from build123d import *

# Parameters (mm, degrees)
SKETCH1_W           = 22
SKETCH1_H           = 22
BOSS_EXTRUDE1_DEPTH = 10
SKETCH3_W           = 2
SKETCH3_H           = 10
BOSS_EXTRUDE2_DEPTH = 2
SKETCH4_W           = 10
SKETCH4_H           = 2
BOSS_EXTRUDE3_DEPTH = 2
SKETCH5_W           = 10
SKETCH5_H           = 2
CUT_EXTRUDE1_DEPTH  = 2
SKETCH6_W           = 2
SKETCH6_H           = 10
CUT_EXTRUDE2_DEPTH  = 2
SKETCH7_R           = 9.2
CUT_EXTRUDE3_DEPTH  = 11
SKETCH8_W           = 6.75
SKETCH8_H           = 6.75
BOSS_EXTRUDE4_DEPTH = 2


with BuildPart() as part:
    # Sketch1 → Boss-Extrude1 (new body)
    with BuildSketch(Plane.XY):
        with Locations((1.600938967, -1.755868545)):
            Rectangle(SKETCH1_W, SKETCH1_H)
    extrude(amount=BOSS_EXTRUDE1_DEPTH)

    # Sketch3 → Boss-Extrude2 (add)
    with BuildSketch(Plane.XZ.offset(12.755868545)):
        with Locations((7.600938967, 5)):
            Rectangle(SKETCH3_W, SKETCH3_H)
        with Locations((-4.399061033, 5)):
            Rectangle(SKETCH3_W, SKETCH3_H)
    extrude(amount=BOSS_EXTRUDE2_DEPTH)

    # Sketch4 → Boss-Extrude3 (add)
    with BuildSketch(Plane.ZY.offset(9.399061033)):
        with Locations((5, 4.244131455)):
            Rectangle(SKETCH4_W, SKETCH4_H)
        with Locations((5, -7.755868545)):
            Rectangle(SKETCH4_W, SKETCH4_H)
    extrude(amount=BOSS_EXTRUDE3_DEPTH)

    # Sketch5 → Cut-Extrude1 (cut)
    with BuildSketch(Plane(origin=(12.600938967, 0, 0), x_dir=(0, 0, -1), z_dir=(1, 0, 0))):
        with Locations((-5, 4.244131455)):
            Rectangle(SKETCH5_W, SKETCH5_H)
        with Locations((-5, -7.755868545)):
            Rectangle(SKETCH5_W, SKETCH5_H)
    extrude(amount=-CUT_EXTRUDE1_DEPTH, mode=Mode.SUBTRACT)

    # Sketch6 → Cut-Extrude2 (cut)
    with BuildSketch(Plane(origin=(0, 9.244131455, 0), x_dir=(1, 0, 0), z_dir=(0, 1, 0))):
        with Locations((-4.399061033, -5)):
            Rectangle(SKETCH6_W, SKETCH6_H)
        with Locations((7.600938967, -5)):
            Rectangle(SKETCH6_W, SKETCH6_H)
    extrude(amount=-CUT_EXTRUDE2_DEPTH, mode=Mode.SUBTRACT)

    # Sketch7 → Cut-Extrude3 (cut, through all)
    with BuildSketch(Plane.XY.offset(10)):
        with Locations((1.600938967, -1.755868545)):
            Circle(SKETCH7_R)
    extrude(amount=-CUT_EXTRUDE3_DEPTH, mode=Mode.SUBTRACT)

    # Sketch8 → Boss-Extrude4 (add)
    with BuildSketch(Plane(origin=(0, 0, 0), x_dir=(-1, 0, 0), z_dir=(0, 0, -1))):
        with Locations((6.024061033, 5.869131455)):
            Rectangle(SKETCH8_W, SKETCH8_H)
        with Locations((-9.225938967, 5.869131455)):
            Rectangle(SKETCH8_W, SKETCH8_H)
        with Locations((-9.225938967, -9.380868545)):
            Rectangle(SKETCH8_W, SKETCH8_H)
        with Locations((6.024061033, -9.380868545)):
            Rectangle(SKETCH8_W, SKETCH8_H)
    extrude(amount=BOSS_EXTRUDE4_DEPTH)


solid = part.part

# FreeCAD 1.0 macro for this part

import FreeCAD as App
import Part
import Sketcher

V = App.Vector

doc = App.newDocument("Part")
body = doc.addObject("PartDesign::Body", "Body")

# Sketch on XY plane
sketch1 = body.newObject("Sketcher::SketchObject", "Sketch")
sketch1.AttachmentSupport = (doc.getObject("XY_Plane"), [""])
sketch1.MapMode = "FlatFace"
sketch1.addGeometry(Part.LineSegment(V(-9, 9, 0), V(-9, -13, 0)), False)
sketch1.addGeometry(Part.LineSegment(V(-9, -13, 0), V(13, -13, 0)), False)
sketch1.addGeometry(Part.LineSegment(V(13, -13, 0), V(13, 9, 0)), False)
sketch1.addGeometry(Part.LineSegment(V(13, 9, 0), V(-9, 9, 0)), False)
sketch1.addConstraint(Sketcher.Constraint("Coincident", 0, 2, 1, 1))
sketch1.addConstraint(Sketcher.Constraint("Coincident", 1, 2, 2, 1))
sketch1.addConstraint(Sketcher.Constraint("Coincident", 2, 2, 3, 1))
sketch1.addConstraint(Sketcher.Constraint("Coincident", 3, 2, 0, 1))
sketch1.addConstraint(Sketcher.Constraint("Vertical", 0))
sketch1.addConstraint(Sketcher.Constraint("Horizontal", 1))
sketch1.addConstraint(Sketcher.Constraint("Vertical", 2))
sketch1.addConstraint(Sketcher.Constraint("Horizontal", 3))
sketch1.addConstraint(Sketcher.Constraint("Equal", 3, 0))
sketch1.addConstraint(Sketcher.Constraint("DistanceX", 1, 1, 1, 2, 22.0))
sketch1.addConstraint(Sketcher.Constraint("DistanceX", 0, 2, -1, 1, 9.399061))
sketch1.addConstraint(Sketcher.Constraint("DistanceY", 0, 2, -1, 1, 12.755869))
pad1 = body.newObject("PartDesign::Pad", "Pad")
pad1.Profile = sketch1
pad1.Length = 10

# Sketch on XZ plane
sketch2 = body.newObject("Sketcher::SketchObject", "Sketch001")
sketch2.AttachmentSupport = (doc.getObject("XZ_Plane"), [""])
sketch2.MapMode = "FlatFace"
sketch2.AttachmentOffset = App.Placement(V(0, 0, 12.755869), App.Rotation())
sketch2.addGeometry(Part.LineSegment(V(6.6, 10, 0), V(6.6, 0, 0)), False)
sketch2.addGeometry(Part.LineSegment(V(6.6, 0, 0), V(8.6, 0, 0)), False)
sketch2.addGeometry(Part.LineSegment(V(8.6, 0, 0), V(8.6, 10, 0)), False)
sketch2.addGeometry(Part.LineSegment(V(8.6, 10, 0), V(6.6, 10, 0)), False)
sketch2.addGeometry(Part.LineSegment(V(-5.4, 10, 0), V(-5.4, 0, 0)), False)
sketch2.addGeometry(Part.LineSegment(V(-5.4, 0, 0), V(-3.4, 0, 0)), False)
sketch2.addGeometry(Part.LineSegment(V(-3.4, 0, 0), V(-3.4, 10, 0)), False)
sketch2.addGeometry(Part.LineSegment(V(-3.4, 10, 0), V(-5.4, 10, 0)), False)
sketch2.addConstraint(Sketcher.Constraint("Coincident", 0, 2, 1, 1))
sketch2.addConstraint(Sketcher.Constraint("Coincident", 1, 2, 2, 1))
sketch2.addConstraint(Sketcher.Constraint("Coincident", 2, 2, 3, 1))
sketch2.addConstraint(Sketcher.Constraint("Coincident", 3, 2, 0, 1))
sketch2.addConstraint(Sketcher.Constraint("Coincident", 4, 2, 5, 1))
sketch2.addConstraint(Sketcher.Constraint("Coincident", 5, 2, 6, 1))
sketch2.addConstraint(Sketcher.Constraint("Coincident", 6, 2, 7, 1))
sketch2.addConstraint(Sketcher.Constraint("Coincident", 7, 2, 4, 1))
sketch2.addConstraint(Sketcher.Constraint("Vertical", 0))
sketch2.addConstraint(Sketcher.Constraint("Horizontal", 1))
sketch2.addConstraint(Sketcher.Constraint("Vertical", 2))
sketch2.addConstraint(Sketcher.Constraint("Horizontal", 3))
sketch2.addConstraint(Sketcher.Constraint("Vertical", 4))
sketch2.addConstraint(Sketcher.Constraint("Horizontal", 5))
sketch2.addConstraint(Sketcher.Constraint("Vertical", 6))
sketch2.addConstraint(Sketcher.Constraint("Horizontal", 7))
sketch2.addConstraint(Sketcher.Constraint("PointOnObject", 0, 2, -1))
sketch2.addConstraint(Sketcher.Constraint("PointOnObject", 4, 2, -1))
sketch2.addConstraint(Sketcher.Constraint("Horizontal", 3, 2, 6, 2))
sketch2.addConstraint(Sketcher.Constraint("Equal", 3, 5))
sketch2.addConstraint(Sketcher.Constraint("DistanceX", 1, 1, 1, 2, 2.0))
sketch2.addConstraint(Sketcher.Constraint("DistanceY", 0, 2, 0, 1, 10.0))
sketch2.addConstraint(Sketcher.Constraint("DistanceX", 4, 2, 0, 2, 12.0))
sketch2.addConstraint(Sketcher.Constraint("DistanceX", -1, 1, 0, 2, 6.600939))
pad2 = body.newObject("PartDesign::Pad", "Pad001")
pad2.Profile = sketch2
pad2.Length = 2

# Sketch on YZ plane
sketch3 = body.newObject("Sketcher::SketchObject", "Sketch002")
sketch3.AttachmentSupport = (doc.getObject("YZ_Plane"), [""])
sketch3.MapMode = "FlatFace"
sketch3.AttachmentOffset = App.Placement(V(0, 0, -9.399061), App.Rotation())
sketch3.addGeometry(Part.LineSegment(V(5.2, 0, 0), V(3.2, 0, 0)), False)
sketch3.addGeometry(Part.LineSegment(V(3.2, 0, 0), V(3.2, 10, 0)), False)
sketch3.addGeometry(Part.LineSegment(V(3.2, 10, 0), V(5.2, 10, 0)), False)
sketch3.addGeometry(Part.LineSegment(V(5.2, 10, 0), V(5.2, 0, 0)), False)
sketch3.addGeometry(Part.LineSegment(V(-6.8, 0, 0), V(-8.8, 0, 0)), False)
sketch3.addGeometry(Part.LineSegment(V(-8.8, 0, 0), V(-8.8, 10, 0)), False)
sketch3.addGeometry(Part.LineSegment(V(-8.8, 10, 0), V(-6.8, 10, 0)), False)
sketch3.addGeometry(Part.LineSegment(V(-6.8, 10, 0), V(-6.8, 0, 0)), False)
sketch3.addConstraint(Sketcher.Constraint("Coincident", 0, 2, 1, 1))
sketch3.addConstraint(Sketcher.Constraint("Coincident", 1, 2, 2, 1))
sketch3.addConstraint(Sketcher.Constraint("Coincident", 2, 2, 3, 1))
sketch3.addConstraint(Sketcher.Constraint("Coincident", 3, 2, 0, 1))
sketch3.addConstraint(Sketcher.Constraint("Coincident", 4, 2, 5, 1))
sketch3.addConstraint(Sketcher.Constraint("Coincident", 5, 2, 6, 1))
sketch3.addConstraint(Sketcher.Constraint("Coincident", 6, 2, 7, 1))
sketch3.addConstraint(Sketcher.Constraint("Coincident", 7, 2, 4, 1))
sketch3.addConstraint(Sketcher.Constraint("Horizontal", 0))
sketch3.addConstraint(Sketcher.Constraint("Vertical", 1))
sketch3.addConstraint(Sketcher.Constraint("Horizontal", 2))
sketch3.addConstraint(Sketcher.Constraint("Vertical", 3))
sketch3.addConstraint(Sketcher.Constraint("Horizontal", 4))
sketch3.addConstraint(Sketcher.Constraint("Vertical", 5))
sketch3.addConstraint(Sketcher.Constraint("Horizontal", 6))
sketch3.addConstraint(Sketcher.Constraint("Vertical", 7))
sketch3.addConstraint(Sketcher.Constraint("PointOnObject", 0, 2, -1))
sketch3.addConstraint(Sketcher.Constraint("PointOnObject", 4, 2, -1))
sketch3.addConstraint(Sketcher.Constraint("Horizontal", 2, 2, 5, 2))
sketch3.addConstraint(Sketcher.Constraint("Equal", 2, 4))
sketch3.addConstraint(Sketcher.Constraint("DistanceX", 0, 2, 0, 1, 2.0))
sketch3.addConstraint(Sketcher.Constraint("DistanceY", 1, 1, 1, 2, 10.0))
sketch3.addConstraint(Sketcher.Constraint("DistanceX", 4, 2, 0, 2, 12.0))
sketch3.addConstraint(Sketcher.Constraint("DistanceX", -1, 1, 0, 2, 3.244131))
pad3 = body.newObject("PartDesign::Pad", "Pad002")
pad3.Profile = sketch3
pad3.Length = 2
pad3.Reversed = True

# Sketch on YZ plane
sketch4 = body.newObject("Sketcher::SketchObject", "Sketch003")
sketch4.AttachmentSupport = (doc.getObject("YZ_Plane"), [""])
sketch4.MapMode = "FlatFace"
sketch4.AttachmentOffset = App.Placement(V(0, 0, 12.600939), App.Rotation())
sketch4.addGeometry(Part.LineSegment(V(5.2, 10, 0), V(3.2, 10, 0)), False)
sketch4.addGeometry(Part.LineSegment(V(3.2, 10, 0), V(3.2, 0, 0)), False)
sketch4.addGeometry(Part.LineSegment(V(3.2, 0, 0), V(5.2, 0, 0)), False)
sketch4.addGeometry(Part.LineSegment(V(5.2, 0, 0), V(5.2, 10, 0)), False)
sketch4.addGeometry(Part.LineSegment(V(-6.8, 10, 0), V(-8.8, 10, 0)), False)
sketch4.addGeometry(Part.LineSegment(V(-8.8, 10, 0), V(-8.8, 0, 0)), False)
sketch4.addGeometry(Part.LineSegment(V(-8.8, 0, 0), V(-6.8, 0, 0)), False)
sketch4.addGeometry(Part.LineSegment(V(-6.8, 0, 0), V(-6.8, 10, 0)), False)
sketch4.addConstraint(Sketcher.Constraint("Coincident", 0, 2, 1, 1))
sketch4.addConstraint(Sketcher.Constraint("Coincident", 1, 2, 2, 1))
sketch4.addConstraint(Sketcher.Constraint("Coincident", 2, 2, 3, 1))
sketch4.addConstraint(Sketcher.Constraint("Coincident", 3, 2, 0, 1))
sketch4.addConstraint(Sketcher.Constraint("Coincident", 4, 2, 5, 1))
sketch4.addConstraint(Sketcher.Constraint("Coincident", 5, 2, 6, 1))
sketch4.addConstraint(Sketcher.Constraint("Coincident", 6, 2, 7, 1))
sketch4.addConstraint(Sketcher.Constraint("Coincident", 7, 2, 4, 1))
sketch4.addConstraint(Sketcher.Constraint("Horizontal", 0))
sketch4.addConstraint(Sketcher.Constraint("Vertical", 1))
sketch4.addConstraint(Sketcher.Constraint("Horizontal", 2))
sketch4.addConstraint(Sketcher.Constraint("Vertical", 3))
sketch4.addConstraint(Sketcher.Constraint("Horizontal", 4))
sketch4.addConstraint(Sketcher.Constraint("Vertical", 5))
sketch4.addConstraint(Sketcher.Constraint("Horizontal", 6))
sketch4.addConstraint(Sketcher.Constraint("Vertical", 7))
sketch4.addConstraint(Sketcher.Constraint("PointOnObject", 1, 2, -1))
sketch4.addConstraint(Sketcher.Constraint("PointOnObject", 5, 2, -1))
sketch4.addConstraint(Sketcher.Constraint("Horizontal", 3, 2, 4, 2))
sketch4.addConstraint(Sketcher.Constraint("Equal", 2, 4))
sketch4.addConstraint(Sketcher.Constraint("DistanceX", 0, 2, 0, 1, 2.0))
sketch4.addConstraint(Sketcher.Constraint("DistanceY", 1, 2, 1, 1, 10.0))
sketch4.addConstraint(Sketcher.Constraint("DistanceX", 4, 2, 0, 2, 12.0))
sketch4.addConstraint(Sketcher.Constraint("DistanceX", -1, 1, 0, 2, 3.244131))
pocket1 = body.newObject("PartDesign::Pocket", "Pocket")
pocket1.Profile = sketch4
pocket1.Length = 2

# Sketch on XZ plane
sketch5 = body.newObject("Sketcher::SketchObject", "Sketch004")
sketch5.AttachmentSupport = (doc.getObject("XZ_Plane"), [""])
sketch5.MapMode = "FlatFace"
sketch5.AttachmentOffset = App.Placement(V(0, 0, -9.244131), App.Rotation())
sketch5.addGeometry(Part.LineSegment(V(-5.4, 0, 0), V(-5.4, 10, 0)), False)
sketch5.addGeometry(Part.LineSegment(V(-5.4, 10, 0), V(-3.4, 10, 0)), False)
sketch5.addGeometry(Part.LineSegment(V(-3.4, 10, 0), V(-3.4, 0, 0)), False)
sketch5.addGeometry(Part.LineSegment(V(-3.4, 0, 0), V(-5.4, 0, 0)), False)
sketch5.addGeometry(Part.LineSegment(V(6.6, 0, 0), V(6.6, 10, 0)), False)
sketch5.addGeometry(Part.LineSegment(V(6.6, 10, 0), V(8.6, 10, 0)), False)
sketch5.addGeometry(Part.LineSegment(V(8.6, 10, 0), V(8.6, 0, 0)), False)
sketch5.addGeometry(Part.LineSegment(V(8.6, 0, 0), V(6.6, 0, 0)), False)
sketch5.addConstraint(Sketcher.Constraint("Coincident", 0, 2, 1, 1))
sketch5.addConstraint(Sketcher.Constraint("Coincident", 1, 2, 2, 1))
sketch5.addConstraint(Sketcher.Constraint("Coincident", 2, 2, 3, 1))
sketch5.addConstraint(Sketcher.Constraint("Coincident", 3, 2, 0, 1))
sketch5.addConstraint(Sketcher.Constraint("Coincident", 4, 2, 5, 1))
sketch5.addConstraint(Sketcher.Constraint("Coincident", 5, 2, 6, 1))
sketch5.addConstraint(Sketcher.Constraint("Coincident", 6, 2, 7, 1))
sketch5.addConstraint(Sketcher.Constraint("Coincident", 7, 2, 4, 1))
sketch5.addConstraint(Sketcher.Constraint("Vertical", 0))
sketch5.addConstraint(Sketcher.Constraint("Horizontal", 1))
sketch5.addConstraint(Sketcher.Constraint("Vertical", 2))
sketch5.addConstraint(Sketcher.Constraint("Horizontal", 3))
sketch5.addConstraint(Sketcher.Constraint("Vertical", 4))
sketch5.addConstraint(Sketcher.Constraint("Horizontal", 5))
sketch5.addConstraint(Sketcher.Constraint("Vertical", 6))
sketch5.addConstraint(Sketcher.Constraint("Horizontal", 7))
sketch5.addConstraint(Sketcher.Constraint("PointOnObject", 2, 2, -1))
sketch5.addConstraint(Sketcher.Constraint("PointOnObject", 6, 2, -1))
sketch5.addConstraint(Sketcher.Constraint("Horizontal", 1, 2, 4, 2))
sketch5.addConstraint(Sketcher.Constraint("Equal", 3, 5))
sketch5.addConstraint(Sketcher.Constraint("DistanceX", 1, 1, 1, 2, 2.0))
sketch5.addConstraint(Sketcher.Constraint("DistanceY", 0, 1, 0, 2, 10.0))
sketch5.addConstraint(Sketcher.Constraint("DistanceX", 1, 2, 4, 2, 10.0))
sketch5.addConstraint(Sketcher.Constraint("DistanceX", 0, 2, -1, 1, 5.399061))
pocket2 = body.newObject("PartDesign::Pocket", "Pocket001")
pocket2.Profile = sketch5
pocket2.Length = 2
pocket2.Reversed = True

# Sketch on XY plane
sketch6 = body.newObject("Sketcher::SketchObject", "Sketch005")
sketch6.AttachmentSupport = (doc.getObject("XY_Plane"), [""])
sketch6.MapMode = "FlatFace"
sketch6.AttachmentOffset = App.Placement(V(0, 0, 10), App.Rotation())
sketch6.addGeometry(Part.Circle(V(2, -2, 0), V(0, 0, 1), 9), False)
sketch6.addConstraint(Sketcher.Constraint("Diameter", 0, 18.4))
sketch6.addConstraint(Sketcher.Constraint("DistanceX", -1, 1, 0, 3, 1.600939))
sketch6.addConstraint(Sketcher.Constraint("DistanceY", 0, 3, -1, 1, 1.755869))
pocket3 = body.newObject("PartDesign::Pocket", "Pocket002")
pocket3.Profile = sketch6
pocket3.Type = "ThroughAll"

# Sketch on XY plane
sketch7 = body.newObject("Sketcher::SketchObject", "Sketch006")
sketch7.AttachmentSupport = (doc.getObject("XY_Plane"), [""])
sketch7.MapMode = "FlatFace"
sketch7.addGeometry(Part.LineSegment(V(-3, 9, 0), V(-3, 2, 0)), False)
sketch7.addGeometry(Part.LineSegment(V(-3, 2, 0), V(-9, 2, 0)), False)
sketch7.addGeometry(Part.LineSegment(V(-9, 2, 0), V(-9, 9, 0)), False)
sketch7.addGeometry(Part.LineSegment(V(-9, 9, 0), V(-3, 9, 0)), False)
sketch7.addGeometry(Part.LineSegment(V(13, 9, 0), V(13, 2, 0)), False)
sketch7.addGeometry(Part.LineSegment(V(13, 2, 0), V(6, 2, 0)), False)
sketch7.addGeometry(Part.LineSegment(V(6, 2, 0), V(6, 9, 0)), False)
sketch7.addGeometry(Part.LineSegment(V(6, 9, 0), V(13, 9, 0)), False)
sketch7.addGeometry(Part.LineSegment(V(13, -6, 0), V(13, -13, 0)), False)
sketch7.addGeometry(Part.LineSegment(V(13, -13, 0), V(6, -13, 0)), False)
sketch7.addGeometry(Part.LineSegment(V(6, -13, 0), V(6, -6, 0)), False)
sketch7.addGeometry(Part.LineSegment(V(6, -6, 0), V(13, -6, 0)), False)
sketch7.addGeometry(Part.LineSegment(V(-3, -6, 0), V(-3, -13, 0)), False)
sketch7.addGeometry(Part.LineSegment(V(-3, -13, 0), V(-9, -13, 0)), False)
sketch7.addGeometry(Part.LineSegment(V(-9, -13, 0), V(-9, -6, 0)), False)
sketch7.addGeometry(Part.LineSegment(V(-9, -6, 0), V(-3, -6, 0)), False)
sketch7.addConstraint(Sketcher.Constraint("Coincident", 0, 2, 1, 1))
sketch7.addConstraint(Sketcher.Constraint("Coincident", 1, 2, 2, 1))
sketch7.addConstraint(Sketcher.Constraint("Coincident", 2, 2, 3, 1))
sketch7.addConstraint(Sketcher.Constraint("Coincident", 3, 2, 0, 1))
sketch7.addConstraint(Sketcher.Constraint("Coincident", 4, 2, 5, 1))
sketch7.addConstraint(Sketcher.Constraint("Coincident", 5, 2, 6, 1))
sketch7.addConstraint(Sketcher.Constraint("Coincident", 6, 2, 7, 1))
sketch7.addConstraint(Sketcher.Constraint("Coincident", 7, 2, 4, 1))
sketch7.addConstraint(Sketcher.Constraint("Coincident", 8, 2, 9, 1))
sketch7.addConstraint(Sketcher.Constraint("Coincident", 9, 2, 10, 1))
sketch7.addConstraint(Sketcher.Constraint("Coincident", 10, 2, 11, 1))
sketch7.addConstraint(Sketcher.Constraint("Coincident", 11, 2, 8, 1))
sketch7.addConstraint(Sketcher.Constraint("Coincident", 12, 2, 13, 1))
sketch7.addConstraint(Sketcher.Constraint("Coincident", 13, 2, 14, 1))
sketch7.addConstraint(Sketcher.Constraint("Coincident", 14, 2, 15, 1))
sketch7.addConstraint(Sketcher.Constraint("Coincident", 15, 2, 12, 1))
sketch7.addConstraint(Sketcher.Constraint("Vertical", 0))
sketch7.addConstraint(Sketcher.Constraint("Horizontal", 1))
sketch7.addConstraint(Sketcher.Constraint("Vertical", 2))
sketch7.addConstraint(Sketcher.Constraint("Horizontal", 3))
sketch7.addConstraint(Sketcher.Constraint("Vertical", 4))
sketch7.addConstraint(Sketcher.Constraint("Horizontal", 5))
sketch7.addConstraint(Sketcher.Constraint("Vertical", 6))
sketch7.addConstraint(Sketcher.Constraint("Horizontal", 7))
sketch7.addConstraint(Sketcher.Constraint("Vertical", 8))
sketch7.addConstraint(Sketcher.Constraint("Horizontal", 9))
sketch7.addConstraint(Sketcher.Constraint("Vertical", 10))
sketch7.addConstraint(Sketcher.Constraint("Horizontal", 11))
sketch7.addConstraint(Sketcher.Constraint("Vertical", 12))
sketch7.addConstraint(Sketcher.Constraint("Horizontal", 13))
sketch7.addConstraint(Sketcher.Constraint("Vertical", 14))
sketch7.addConstraint(Sketcher.Constraint("Horizontal", 15))
sketch7.addConstraint(Sketcher.Constraint("Horizontal", 1, 2, 4, 2))
sketch7.addConstraint(Sketcher.Constraint("Horizontal", 3, 2, 6, 2))
sketch7.addConstraint(Sketcher.Constraint("Horizontal", 9, 2, 12, 2))
sketch7.addConstraint(Sketcher.Constraint("Horizontal", 11, 2, 14, 2))
sketch7.addConstraint(Sketcher.Constraint("Vertical", 7, 2, 8, 2))
sketch7.addConstraint(Sketcher.Constraint("Vertical", 6, 2, 9, 2))
sketch7.addConstraint(Sketcher.Constraint("Vertical", 3, 2, 12, 2))
sketch7.addConstraint(Sketcher.Constraint("Vertical", 2, 2, 13, 2))
sketch7.addConstraint(Sketcher.Constraint("Equal", 3, 5))
sketch7.addConstraint(Sketcher.Constraint("Equal", 15, 0))
sketch7.addConstraint(Sketcher.Constraint("Equal", 6, 8))
sketch7.addConstraint(Sketcher.Constraint("DistanceX", 1, 2, 4, 2, 22.0))
sketch7.addConstraint(Sketcher.Constraint("DistanceY", 8, 2, 7, 2, 22.0))
sketch7.addConstraint(Sketcher.Constraint("DistanceX", 1, 2, 1, 1, 6.75))
sketch7.addConstraint(Sketcher.Constraint("DistanceX", 0, 2, -1, 1, 2.649061))
sketch7.addConstraint(Sketcher.Constraint("DistanceY", -1, 1, 0, 2, 2.494131))
pad4 = body.newObject("PartDesign::Pad", "Pad003")
pad4.Profile = sketch7
pad4.Length = 2
pad4.Reversed = True

doc.recompute()
